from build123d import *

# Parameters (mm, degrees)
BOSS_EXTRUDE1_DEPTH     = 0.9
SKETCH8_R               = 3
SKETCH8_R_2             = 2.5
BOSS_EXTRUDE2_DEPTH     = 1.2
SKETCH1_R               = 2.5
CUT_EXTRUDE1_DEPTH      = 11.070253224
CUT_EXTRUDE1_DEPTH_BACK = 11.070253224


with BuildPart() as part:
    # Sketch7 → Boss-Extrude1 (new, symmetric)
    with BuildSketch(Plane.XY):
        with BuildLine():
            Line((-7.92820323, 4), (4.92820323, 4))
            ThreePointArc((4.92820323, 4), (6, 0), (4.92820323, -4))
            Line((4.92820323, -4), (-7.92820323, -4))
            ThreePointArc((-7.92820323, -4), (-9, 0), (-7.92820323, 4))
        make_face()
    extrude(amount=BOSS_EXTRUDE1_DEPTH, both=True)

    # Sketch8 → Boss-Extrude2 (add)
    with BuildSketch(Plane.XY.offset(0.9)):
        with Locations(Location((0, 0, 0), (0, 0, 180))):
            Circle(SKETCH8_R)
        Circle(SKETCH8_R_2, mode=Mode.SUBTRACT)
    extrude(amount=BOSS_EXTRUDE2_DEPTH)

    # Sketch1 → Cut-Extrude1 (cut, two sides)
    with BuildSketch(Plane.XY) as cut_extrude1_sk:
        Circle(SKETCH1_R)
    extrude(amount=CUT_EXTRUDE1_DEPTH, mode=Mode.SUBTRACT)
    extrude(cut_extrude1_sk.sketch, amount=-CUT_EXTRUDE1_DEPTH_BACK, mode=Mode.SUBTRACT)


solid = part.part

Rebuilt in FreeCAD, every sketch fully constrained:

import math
import FreeCAD as App
import Part
import Sketcher
Q = App.Units.Quantity

doc = App.newDocument("Part")
body = doc.addObject("PartDesign::Body", "Body")

# Sketch on XY plane
sketch1 = body.newObject("Sketcher::SketchObject", "Sketch")
sketch1.AttachmentSupport = (doc.getObject("XY_Plane"), [""])
sketch1.MapMode = "FlatFace"
sketch1.addGeometry([
    Part.LineSegment(App.Vector(5, 4, 0), App.Vector(-8, 4, 0)),
    Part.ArcOfCircle(Part.Circle(App.Vector(-1, 0, 0), App.Vector(0, 0, 1), 8), math.radians(150), math.radians(210)),
    Part.LineSegment(App.Vector(-8, -4, 0), App.Vector(5, -4, 0)),
    Part.ArcOfCircle(Part.Circle(App.Vector(-2, 0, 0), App.Vector(0, 0, 1), 8), math.radians(-30), math.radians(30)),
], False)
sketch1.addConstraint([
    Sketcher.Constraint("Coincident", 0, 2, 1, 1),
    Sketcher.Constraint("Coincident", 1, 2, 2, 1),
    Sketcher.Constraint("Coincident", 2, 2, 3, 1),
    Sketcher.Constraint("Coincident", 3, 2, 0, 1),
    Sketcher.Constraint("Horizontal", 0),
    Sketcher.Constraint("Horizontal", 2),
    Sketcher.Constraint("Equal", 1, 3),
    Sketcher.Constraint("Symmetric", 0, 2, 1, 2, -1),
    Sketcher.Constraint("PointOnObject", 3, 3, -1),
    Sketcher.Constraint("Radius", 1, Q("8 mm")),
    Sketcher.Constraint("DistanceX", 1, 3, -1, 1, Q("1 mm")),
    Sketcher.Constraint("DistanceX", 3, 3, -1, 1, Q("2 mm")),
    Sketcher.Constraint("DistanceY", -1, 1, 0, 2, Q("4 mm")),
])
pad1 = body.newObject("PartDesign::Pad", "Pad")
pad1.Profile = sketch1
pad1.Length = 1.8
pad1.Midplane = True

# Sketch on XY plane
sketch2 = body.newObject("Sketcher::SketchObject", "Sketch001")
sketch2.AttachmentSupport = (doc.getObject("XY_Plane"), [""])
sketch2.MapMode = "FlatFace"
sketch2.AttachmentOffset = App.Placement(App.Vector(0, 0, 0.9), App.Rotation())
sketch2.addGeometry([
    Part.Circle(App.Vector(0, 0, 0), App.Vector(0, 0, 1), 3),
    Part.Circle(App.Vector(0, 0, 0), App.Vector(0, 0, 1), 2.5),
], False)
sketch2.addConstraint([
    Sketcher.Constraint("Coincident", 0, 3, -1, 1),
    Sketcher.Constraint("Coincident", 1, 3, -1, 1),
    Sketcher.Constraint("Diameter", 0, Q("6 mm")),
    Sketcher.Constraint("Diameter", 1, Q("5 mm")),
])
pad2 = body.newObject("PartDesign::Pad", "Pad001")
pad2.Profile = sketch2
pad2.Length = 1.2

# Sketch on XY plane
sketch3 = body.newObject("Sketcher::SketchObject", "Sketch002")
sketch3.AttachmentSupport = (doc.getObject("XY_Plane"), [""])
sketch3.MapMode = "FlatFace"
sketch3.addGeometry(Part.Circle(App.Vector(0, 0, 0), App.Vector(0, 0, 1), 2.5), False)
sketch3.addConstraint([
    Sketcher.Constraint("Coincident", 0, 3, -1, 1),
    Sketcher.Constraint("Diameter", 0, Q("5 mm")),
])
pocket1 = body.newObject("PartDesign::Pocket", "Pocket")
pocket1.Profile = sketch3
pocket1.Type = "ThroughAll"
pocket1.Midplane = True

doc.recompute()
